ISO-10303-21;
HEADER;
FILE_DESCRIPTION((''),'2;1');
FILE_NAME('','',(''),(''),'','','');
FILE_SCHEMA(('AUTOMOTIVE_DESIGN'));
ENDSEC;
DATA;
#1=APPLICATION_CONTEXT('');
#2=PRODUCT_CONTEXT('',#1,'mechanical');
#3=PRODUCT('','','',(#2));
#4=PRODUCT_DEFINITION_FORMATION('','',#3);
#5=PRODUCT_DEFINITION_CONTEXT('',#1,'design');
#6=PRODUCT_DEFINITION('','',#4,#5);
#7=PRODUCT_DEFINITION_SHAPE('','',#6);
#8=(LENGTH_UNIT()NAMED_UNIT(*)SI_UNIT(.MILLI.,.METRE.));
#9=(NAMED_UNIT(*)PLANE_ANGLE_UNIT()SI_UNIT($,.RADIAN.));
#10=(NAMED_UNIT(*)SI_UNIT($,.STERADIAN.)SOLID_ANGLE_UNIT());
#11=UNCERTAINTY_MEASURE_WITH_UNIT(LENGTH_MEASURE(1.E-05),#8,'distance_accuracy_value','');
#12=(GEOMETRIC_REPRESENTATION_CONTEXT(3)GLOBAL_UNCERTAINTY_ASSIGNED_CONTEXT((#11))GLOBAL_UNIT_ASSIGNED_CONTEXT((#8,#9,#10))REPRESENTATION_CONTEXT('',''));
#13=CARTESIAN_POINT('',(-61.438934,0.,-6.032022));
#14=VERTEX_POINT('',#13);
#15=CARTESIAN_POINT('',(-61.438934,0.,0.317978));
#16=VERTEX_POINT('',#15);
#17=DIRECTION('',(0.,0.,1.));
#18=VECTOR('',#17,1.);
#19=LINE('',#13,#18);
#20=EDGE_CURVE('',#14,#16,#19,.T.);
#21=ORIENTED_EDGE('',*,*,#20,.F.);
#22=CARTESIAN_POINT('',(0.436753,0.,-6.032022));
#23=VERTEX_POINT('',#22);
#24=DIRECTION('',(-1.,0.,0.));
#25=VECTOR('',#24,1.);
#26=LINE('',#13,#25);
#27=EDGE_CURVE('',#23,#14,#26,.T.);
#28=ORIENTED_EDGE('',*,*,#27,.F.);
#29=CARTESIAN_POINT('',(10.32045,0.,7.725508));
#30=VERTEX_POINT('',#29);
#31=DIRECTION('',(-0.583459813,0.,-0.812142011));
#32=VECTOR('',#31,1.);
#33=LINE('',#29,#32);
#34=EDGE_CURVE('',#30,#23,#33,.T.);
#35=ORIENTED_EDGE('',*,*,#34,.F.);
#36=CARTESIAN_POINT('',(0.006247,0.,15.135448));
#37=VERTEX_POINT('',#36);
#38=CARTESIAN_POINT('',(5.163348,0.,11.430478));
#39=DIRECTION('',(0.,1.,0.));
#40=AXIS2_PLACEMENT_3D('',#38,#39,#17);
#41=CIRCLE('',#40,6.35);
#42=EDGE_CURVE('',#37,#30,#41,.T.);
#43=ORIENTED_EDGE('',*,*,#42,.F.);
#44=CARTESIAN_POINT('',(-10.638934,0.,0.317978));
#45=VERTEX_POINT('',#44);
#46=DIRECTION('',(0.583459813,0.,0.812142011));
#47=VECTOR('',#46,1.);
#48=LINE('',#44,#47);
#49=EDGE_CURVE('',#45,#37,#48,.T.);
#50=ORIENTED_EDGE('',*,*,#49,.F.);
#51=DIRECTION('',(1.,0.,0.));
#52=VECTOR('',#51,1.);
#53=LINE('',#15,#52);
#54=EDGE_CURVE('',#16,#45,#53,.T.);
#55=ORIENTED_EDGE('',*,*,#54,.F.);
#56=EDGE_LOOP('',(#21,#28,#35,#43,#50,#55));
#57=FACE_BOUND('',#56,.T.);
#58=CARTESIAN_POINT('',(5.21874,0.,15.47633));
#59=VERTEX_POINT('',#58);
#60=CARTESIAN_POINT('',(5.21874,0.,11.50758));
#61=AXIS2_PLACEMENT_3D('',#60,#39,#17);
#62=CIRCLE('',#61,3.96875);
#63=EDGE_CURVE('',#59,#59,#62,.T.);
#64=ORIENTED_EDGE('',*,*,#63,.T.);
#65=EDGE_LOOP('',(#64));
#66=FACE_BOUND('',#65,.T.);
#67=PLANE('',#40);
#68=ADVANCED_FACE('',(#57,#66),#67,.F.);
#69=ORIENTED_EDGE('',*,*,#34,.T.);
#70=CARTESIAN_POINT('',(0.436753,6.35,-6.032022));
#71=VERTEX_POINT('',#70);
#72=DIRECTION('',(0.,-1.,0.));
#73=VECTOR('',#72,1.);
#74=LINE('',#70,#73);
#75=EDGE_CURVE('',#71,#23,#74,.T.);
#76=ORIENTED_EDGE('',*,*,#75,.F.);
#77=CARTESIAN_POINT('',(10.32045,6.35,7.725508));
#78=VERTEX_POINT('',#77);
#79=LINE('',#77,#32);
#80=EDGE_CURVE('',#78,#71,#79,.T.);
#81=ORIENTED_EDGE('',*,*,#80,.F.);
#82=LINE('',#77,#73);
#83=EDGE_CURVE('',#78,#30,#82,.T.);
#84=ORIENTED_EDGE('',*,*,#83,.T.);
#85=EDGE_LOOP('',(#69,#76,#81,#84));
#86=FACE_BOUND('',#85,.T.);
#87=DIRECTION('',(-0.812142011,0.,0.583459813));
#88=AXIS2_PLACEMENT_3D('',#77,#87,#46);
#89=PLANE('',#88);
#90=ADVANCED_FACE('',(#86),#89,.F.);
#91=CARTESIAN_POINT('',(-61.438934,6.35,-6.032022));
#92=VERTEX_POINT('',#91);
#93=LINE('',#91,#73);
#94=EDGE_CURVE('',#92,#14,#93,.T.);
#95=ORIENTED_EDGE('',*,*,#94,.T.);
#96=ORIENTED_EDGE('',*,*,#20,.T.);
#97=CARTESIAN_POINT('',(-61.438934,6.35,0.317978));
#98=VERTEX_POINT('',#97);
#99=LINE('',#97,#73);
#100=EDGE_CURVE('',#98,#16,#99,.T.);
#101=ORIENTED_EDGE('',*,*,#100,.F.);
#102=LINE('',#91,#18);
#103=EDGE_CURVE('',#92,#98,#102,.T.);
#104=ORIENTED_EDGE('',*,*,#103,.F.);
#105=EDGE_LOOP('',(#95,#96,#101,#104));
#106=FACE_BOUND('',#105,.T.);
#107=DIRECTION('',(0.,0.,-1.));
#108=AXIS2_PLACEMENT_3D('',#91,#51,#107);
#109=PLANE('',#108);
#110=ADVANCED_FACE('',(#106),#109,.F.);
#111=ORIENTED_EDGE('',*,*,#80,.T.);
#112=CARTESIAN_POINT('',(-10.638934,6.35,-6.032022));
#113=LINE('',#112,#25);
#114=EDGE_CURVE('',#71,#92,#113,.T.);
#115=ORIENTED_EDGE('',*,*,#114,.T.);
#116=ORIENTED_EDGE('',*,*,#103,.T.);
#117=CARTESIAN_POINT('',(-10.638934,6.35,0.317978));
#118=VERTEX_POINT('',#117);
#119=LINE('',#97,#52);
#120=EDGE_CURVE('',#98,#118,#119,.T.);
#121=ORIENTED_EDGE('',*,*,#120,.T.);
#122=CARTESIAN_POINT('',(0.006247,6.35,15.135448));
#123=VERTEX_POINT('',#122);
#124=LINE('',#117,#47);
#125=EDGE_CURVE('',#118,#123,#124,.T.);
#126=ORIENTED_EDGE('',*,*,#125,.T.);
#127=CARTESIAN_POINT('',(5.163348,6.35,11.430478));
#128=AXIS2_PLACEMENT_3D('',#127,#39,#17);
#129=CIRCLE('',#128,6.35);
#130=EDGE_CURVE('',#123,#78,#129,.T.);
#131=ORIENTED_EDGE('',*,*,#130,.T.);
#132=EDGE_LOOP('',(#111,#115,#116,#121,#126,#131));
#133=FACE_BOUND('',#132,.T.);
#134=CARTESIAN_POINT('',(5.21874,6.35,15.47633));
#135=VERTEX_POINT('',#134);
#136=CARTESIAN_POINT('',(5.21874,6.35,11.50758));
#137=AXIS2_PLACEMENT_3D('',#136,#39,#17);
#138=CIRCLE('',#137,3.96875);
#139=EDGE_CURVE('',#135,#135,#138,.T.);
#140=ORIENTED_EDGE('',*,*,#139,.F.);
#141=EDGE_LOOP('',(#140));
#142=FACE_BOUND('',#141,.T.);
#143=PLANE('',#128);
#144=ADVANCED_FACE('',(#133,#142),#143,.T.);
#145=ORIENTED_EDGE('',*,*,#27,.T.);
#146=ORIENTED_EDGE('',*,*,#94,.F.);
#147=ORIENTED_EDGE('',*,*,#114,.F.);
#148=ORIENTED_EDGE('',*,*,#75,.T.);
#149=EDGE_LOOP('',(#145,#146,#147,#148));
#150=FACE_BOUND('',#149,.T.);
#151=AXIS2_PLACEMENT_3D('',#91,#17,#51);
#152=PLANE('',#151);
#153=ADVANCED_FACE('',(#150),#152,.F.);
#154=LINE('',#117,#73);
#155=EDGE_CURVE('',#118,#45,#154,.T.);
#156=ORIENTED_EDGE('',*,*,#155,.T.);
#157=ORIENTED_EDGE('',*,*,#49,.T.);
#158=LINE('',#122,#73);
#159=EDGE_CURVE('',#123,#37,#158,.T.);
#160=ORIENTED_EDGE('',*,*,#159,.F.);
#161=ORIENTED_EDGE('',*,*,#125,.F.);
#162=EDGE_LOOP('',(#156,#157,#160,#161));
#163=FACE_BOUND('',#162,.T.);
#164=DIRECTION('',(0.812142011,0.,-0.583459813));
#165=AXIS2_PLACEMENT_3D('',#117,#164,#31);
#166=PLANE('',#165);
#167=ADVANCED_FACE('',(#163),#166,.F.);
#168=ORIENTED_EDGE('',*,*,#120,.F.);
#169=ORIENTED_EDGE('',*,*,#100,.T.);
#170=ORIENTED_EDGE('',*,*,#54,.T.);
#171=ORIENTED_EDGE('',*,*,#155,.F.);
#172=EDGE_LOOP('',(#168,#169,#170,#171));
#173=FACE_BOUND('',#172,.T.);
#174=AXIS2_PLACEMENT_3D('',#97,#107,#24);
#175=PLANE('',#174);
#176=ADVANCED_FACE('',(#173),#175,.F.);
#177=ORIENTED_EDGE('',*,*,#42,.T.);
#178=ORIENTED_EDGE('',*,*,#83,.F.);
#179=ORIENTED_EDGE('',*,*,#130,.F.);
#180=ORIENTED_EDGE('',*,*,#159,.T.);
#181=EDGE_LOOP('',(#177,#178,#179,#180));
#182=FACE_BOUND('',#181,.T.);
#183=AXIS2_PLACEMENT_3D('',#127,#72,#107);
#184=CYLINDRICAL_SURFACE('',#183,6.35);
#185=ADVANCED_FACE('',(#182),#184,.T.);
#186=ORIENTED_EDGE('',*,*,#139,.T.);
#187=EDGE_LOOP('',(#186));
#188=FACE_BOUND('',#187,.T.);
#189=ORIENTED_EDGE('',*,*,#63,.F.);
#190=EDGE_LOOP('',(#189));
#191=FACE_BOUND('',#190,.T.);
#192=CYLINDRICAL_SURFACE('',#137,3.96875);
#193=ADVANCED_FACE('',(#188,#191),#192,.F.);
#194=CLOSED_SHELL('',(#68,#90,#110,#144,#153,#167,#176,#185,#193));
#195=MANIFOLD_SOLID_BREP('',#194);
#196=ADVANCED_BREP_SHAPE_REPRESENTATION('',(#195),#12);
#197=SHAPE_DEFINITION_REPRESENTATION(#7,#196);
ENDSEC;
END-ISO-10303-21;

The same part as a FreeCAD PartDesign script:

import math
import FreeCAD as App
import Part
import Sketcher
Q = App.Units.Quantity

doc = App.newDocument("Part")
body = doc.addObject("PartDesign::Body", "Body")

sketch1 = body.newObject("Sketcher::SketchObject", "Sketch")
sketch1.AttachmentSupport = (doc.getObject("XZ_Plane"), [""])
sketch1.MapMode = "FlatFace"
sketch1.addGeometry(Part.LineSegment(App.Vector(-11, 0, 0), App.Vector(0, 15, 0)), False)
sketch1.addGeometry(Part.ArcOfCircle(Part.Circle(App.Vector(5, 11, 0), App.Vector(0, 0, 1), 6), math.radians(-36), math.radians(144)), False)
sketch1.addGeometry(Part.LineSegment(App.Vector(10, 8, 0), App.Vector(0, -6, 0)), False)
sketch1.addGeometry(Part.LineSegment(App.Vector(0, -6, 0), App.Vector(-61, -6, 0)), False)
sketch1.addGeometry(Part.LineSegment(App.Vector(-61, -6, 0), App.Vector(-61, 0, 0)), False)
sketch1.addGeometry(Part.LineSegment(App.Vector(-61, 0, 0), App.Vector(-11, 0, 0)), False)
sketch1.addConstraint(Sketcher.Constraint("Tangent", 0, 2, 1, 2))
sketch1.addConstraint(Sketcher.Constraint("Tangent", 1, 1, 2, 1))
sketch1.addConstraint(Sketcher.Constraint("Coincident", 2, 2, 3, 1))
sketch1.addConstraint(Sketcher.Constraint("Coincident", 3, 2, 4, 1))
sketch1.addConstraint(Sketcher.Constraint("Coincident", 4, 2, 5, 1))
sketch1.addConstraint(Sketcher.Constraint("Coincident", 5, 2, 0, 1))
sketch1.addConstraint(Sketcher.Constraint("Horizontal", 3))
sketch1.addConstraint(Sketcher.Constraint("Vertical", 4))
sketch1.addConstraint(Sketcher.Constraint("Horizontal", 5))
sketch1.addConstraint(Sketcher.Constraint("Parallel", 0, 2))
sketch1.addConstraint(Sketcher.Constraint("DistanceX", 5, 1, 5, 2, Q("2 in")))
sketch1.addConstraint(Sketcher.Constraint("Radius", 1, Q("0.25 in")))
sketch1.addConstraint(Sketcher.Constraint("DistanceY", 4, 1, 4, 2, Q("0.25 in")))
sketch1.addConstraint(Sketcher.Constraint("DistanceY", 2, 2, 1, 3, Q("0.6875 in")))
sketch1.addConstraint(Sketcher.Constraint("DistanceX", 0, 2, 1, 3, 5.157102))
sketch1.addConstraint(Sketcher.Constraint("DistanceX", -1, 1, 1, 3, 5.163348))
sketch1.addConstraint(Sketcher.Constraint("DistanceY", -1, 1, 1, 3, 11.430478))
pad1 = body.newObject("PartDesign::Pad", "Pad")
pad1.Profile = sketch1
pad1.Length = Q("0.25 in")
pad1.Reversed = True

sketch2 = body.newObject("Sketcher::SketchObject", "Sketch001")
sketch2.AttachmentSupport = (doc.getObject("XZ_Plane"), [""])
sketch2.MapMode = "FlatFace"
sketch2.AttachmentOffset = App.Placement(App.Vector(0, 0, -0.25 * 25.4), App.Rotation())
sketch2.addGeometry(Part.Circle(App.Vector(5.2, 11.5, 0), App.Vector(0, 0, 1), 4), False)
sketch2.addConstraint(Sketcher.Constraint("Diameter", 0, Q("0.3125 in")))
sketch2.addConstraint(Sketcher.Constraint("DistanceX", -1, 1, 0, 3, 5.21874))
sketch2.addConstraint(Sketcher.Constraint("DistanceY", -1, 1, 0, 3, 11.50758))
doc.recompute()
hole = body.newObject("PartDesign::Hole", "Hole")
hole.Profile = sketch2
hole.ThreadType = "None"
hole.Diameter = Q("0.3125 in")
hole.DepthType = "Dimension"
hole.Depth = Q("0.25 in")
hole.DrillPoint = "Angled"
hole.DrillPointAngle = 118
hole.Reversed = True

doc.recompute()
